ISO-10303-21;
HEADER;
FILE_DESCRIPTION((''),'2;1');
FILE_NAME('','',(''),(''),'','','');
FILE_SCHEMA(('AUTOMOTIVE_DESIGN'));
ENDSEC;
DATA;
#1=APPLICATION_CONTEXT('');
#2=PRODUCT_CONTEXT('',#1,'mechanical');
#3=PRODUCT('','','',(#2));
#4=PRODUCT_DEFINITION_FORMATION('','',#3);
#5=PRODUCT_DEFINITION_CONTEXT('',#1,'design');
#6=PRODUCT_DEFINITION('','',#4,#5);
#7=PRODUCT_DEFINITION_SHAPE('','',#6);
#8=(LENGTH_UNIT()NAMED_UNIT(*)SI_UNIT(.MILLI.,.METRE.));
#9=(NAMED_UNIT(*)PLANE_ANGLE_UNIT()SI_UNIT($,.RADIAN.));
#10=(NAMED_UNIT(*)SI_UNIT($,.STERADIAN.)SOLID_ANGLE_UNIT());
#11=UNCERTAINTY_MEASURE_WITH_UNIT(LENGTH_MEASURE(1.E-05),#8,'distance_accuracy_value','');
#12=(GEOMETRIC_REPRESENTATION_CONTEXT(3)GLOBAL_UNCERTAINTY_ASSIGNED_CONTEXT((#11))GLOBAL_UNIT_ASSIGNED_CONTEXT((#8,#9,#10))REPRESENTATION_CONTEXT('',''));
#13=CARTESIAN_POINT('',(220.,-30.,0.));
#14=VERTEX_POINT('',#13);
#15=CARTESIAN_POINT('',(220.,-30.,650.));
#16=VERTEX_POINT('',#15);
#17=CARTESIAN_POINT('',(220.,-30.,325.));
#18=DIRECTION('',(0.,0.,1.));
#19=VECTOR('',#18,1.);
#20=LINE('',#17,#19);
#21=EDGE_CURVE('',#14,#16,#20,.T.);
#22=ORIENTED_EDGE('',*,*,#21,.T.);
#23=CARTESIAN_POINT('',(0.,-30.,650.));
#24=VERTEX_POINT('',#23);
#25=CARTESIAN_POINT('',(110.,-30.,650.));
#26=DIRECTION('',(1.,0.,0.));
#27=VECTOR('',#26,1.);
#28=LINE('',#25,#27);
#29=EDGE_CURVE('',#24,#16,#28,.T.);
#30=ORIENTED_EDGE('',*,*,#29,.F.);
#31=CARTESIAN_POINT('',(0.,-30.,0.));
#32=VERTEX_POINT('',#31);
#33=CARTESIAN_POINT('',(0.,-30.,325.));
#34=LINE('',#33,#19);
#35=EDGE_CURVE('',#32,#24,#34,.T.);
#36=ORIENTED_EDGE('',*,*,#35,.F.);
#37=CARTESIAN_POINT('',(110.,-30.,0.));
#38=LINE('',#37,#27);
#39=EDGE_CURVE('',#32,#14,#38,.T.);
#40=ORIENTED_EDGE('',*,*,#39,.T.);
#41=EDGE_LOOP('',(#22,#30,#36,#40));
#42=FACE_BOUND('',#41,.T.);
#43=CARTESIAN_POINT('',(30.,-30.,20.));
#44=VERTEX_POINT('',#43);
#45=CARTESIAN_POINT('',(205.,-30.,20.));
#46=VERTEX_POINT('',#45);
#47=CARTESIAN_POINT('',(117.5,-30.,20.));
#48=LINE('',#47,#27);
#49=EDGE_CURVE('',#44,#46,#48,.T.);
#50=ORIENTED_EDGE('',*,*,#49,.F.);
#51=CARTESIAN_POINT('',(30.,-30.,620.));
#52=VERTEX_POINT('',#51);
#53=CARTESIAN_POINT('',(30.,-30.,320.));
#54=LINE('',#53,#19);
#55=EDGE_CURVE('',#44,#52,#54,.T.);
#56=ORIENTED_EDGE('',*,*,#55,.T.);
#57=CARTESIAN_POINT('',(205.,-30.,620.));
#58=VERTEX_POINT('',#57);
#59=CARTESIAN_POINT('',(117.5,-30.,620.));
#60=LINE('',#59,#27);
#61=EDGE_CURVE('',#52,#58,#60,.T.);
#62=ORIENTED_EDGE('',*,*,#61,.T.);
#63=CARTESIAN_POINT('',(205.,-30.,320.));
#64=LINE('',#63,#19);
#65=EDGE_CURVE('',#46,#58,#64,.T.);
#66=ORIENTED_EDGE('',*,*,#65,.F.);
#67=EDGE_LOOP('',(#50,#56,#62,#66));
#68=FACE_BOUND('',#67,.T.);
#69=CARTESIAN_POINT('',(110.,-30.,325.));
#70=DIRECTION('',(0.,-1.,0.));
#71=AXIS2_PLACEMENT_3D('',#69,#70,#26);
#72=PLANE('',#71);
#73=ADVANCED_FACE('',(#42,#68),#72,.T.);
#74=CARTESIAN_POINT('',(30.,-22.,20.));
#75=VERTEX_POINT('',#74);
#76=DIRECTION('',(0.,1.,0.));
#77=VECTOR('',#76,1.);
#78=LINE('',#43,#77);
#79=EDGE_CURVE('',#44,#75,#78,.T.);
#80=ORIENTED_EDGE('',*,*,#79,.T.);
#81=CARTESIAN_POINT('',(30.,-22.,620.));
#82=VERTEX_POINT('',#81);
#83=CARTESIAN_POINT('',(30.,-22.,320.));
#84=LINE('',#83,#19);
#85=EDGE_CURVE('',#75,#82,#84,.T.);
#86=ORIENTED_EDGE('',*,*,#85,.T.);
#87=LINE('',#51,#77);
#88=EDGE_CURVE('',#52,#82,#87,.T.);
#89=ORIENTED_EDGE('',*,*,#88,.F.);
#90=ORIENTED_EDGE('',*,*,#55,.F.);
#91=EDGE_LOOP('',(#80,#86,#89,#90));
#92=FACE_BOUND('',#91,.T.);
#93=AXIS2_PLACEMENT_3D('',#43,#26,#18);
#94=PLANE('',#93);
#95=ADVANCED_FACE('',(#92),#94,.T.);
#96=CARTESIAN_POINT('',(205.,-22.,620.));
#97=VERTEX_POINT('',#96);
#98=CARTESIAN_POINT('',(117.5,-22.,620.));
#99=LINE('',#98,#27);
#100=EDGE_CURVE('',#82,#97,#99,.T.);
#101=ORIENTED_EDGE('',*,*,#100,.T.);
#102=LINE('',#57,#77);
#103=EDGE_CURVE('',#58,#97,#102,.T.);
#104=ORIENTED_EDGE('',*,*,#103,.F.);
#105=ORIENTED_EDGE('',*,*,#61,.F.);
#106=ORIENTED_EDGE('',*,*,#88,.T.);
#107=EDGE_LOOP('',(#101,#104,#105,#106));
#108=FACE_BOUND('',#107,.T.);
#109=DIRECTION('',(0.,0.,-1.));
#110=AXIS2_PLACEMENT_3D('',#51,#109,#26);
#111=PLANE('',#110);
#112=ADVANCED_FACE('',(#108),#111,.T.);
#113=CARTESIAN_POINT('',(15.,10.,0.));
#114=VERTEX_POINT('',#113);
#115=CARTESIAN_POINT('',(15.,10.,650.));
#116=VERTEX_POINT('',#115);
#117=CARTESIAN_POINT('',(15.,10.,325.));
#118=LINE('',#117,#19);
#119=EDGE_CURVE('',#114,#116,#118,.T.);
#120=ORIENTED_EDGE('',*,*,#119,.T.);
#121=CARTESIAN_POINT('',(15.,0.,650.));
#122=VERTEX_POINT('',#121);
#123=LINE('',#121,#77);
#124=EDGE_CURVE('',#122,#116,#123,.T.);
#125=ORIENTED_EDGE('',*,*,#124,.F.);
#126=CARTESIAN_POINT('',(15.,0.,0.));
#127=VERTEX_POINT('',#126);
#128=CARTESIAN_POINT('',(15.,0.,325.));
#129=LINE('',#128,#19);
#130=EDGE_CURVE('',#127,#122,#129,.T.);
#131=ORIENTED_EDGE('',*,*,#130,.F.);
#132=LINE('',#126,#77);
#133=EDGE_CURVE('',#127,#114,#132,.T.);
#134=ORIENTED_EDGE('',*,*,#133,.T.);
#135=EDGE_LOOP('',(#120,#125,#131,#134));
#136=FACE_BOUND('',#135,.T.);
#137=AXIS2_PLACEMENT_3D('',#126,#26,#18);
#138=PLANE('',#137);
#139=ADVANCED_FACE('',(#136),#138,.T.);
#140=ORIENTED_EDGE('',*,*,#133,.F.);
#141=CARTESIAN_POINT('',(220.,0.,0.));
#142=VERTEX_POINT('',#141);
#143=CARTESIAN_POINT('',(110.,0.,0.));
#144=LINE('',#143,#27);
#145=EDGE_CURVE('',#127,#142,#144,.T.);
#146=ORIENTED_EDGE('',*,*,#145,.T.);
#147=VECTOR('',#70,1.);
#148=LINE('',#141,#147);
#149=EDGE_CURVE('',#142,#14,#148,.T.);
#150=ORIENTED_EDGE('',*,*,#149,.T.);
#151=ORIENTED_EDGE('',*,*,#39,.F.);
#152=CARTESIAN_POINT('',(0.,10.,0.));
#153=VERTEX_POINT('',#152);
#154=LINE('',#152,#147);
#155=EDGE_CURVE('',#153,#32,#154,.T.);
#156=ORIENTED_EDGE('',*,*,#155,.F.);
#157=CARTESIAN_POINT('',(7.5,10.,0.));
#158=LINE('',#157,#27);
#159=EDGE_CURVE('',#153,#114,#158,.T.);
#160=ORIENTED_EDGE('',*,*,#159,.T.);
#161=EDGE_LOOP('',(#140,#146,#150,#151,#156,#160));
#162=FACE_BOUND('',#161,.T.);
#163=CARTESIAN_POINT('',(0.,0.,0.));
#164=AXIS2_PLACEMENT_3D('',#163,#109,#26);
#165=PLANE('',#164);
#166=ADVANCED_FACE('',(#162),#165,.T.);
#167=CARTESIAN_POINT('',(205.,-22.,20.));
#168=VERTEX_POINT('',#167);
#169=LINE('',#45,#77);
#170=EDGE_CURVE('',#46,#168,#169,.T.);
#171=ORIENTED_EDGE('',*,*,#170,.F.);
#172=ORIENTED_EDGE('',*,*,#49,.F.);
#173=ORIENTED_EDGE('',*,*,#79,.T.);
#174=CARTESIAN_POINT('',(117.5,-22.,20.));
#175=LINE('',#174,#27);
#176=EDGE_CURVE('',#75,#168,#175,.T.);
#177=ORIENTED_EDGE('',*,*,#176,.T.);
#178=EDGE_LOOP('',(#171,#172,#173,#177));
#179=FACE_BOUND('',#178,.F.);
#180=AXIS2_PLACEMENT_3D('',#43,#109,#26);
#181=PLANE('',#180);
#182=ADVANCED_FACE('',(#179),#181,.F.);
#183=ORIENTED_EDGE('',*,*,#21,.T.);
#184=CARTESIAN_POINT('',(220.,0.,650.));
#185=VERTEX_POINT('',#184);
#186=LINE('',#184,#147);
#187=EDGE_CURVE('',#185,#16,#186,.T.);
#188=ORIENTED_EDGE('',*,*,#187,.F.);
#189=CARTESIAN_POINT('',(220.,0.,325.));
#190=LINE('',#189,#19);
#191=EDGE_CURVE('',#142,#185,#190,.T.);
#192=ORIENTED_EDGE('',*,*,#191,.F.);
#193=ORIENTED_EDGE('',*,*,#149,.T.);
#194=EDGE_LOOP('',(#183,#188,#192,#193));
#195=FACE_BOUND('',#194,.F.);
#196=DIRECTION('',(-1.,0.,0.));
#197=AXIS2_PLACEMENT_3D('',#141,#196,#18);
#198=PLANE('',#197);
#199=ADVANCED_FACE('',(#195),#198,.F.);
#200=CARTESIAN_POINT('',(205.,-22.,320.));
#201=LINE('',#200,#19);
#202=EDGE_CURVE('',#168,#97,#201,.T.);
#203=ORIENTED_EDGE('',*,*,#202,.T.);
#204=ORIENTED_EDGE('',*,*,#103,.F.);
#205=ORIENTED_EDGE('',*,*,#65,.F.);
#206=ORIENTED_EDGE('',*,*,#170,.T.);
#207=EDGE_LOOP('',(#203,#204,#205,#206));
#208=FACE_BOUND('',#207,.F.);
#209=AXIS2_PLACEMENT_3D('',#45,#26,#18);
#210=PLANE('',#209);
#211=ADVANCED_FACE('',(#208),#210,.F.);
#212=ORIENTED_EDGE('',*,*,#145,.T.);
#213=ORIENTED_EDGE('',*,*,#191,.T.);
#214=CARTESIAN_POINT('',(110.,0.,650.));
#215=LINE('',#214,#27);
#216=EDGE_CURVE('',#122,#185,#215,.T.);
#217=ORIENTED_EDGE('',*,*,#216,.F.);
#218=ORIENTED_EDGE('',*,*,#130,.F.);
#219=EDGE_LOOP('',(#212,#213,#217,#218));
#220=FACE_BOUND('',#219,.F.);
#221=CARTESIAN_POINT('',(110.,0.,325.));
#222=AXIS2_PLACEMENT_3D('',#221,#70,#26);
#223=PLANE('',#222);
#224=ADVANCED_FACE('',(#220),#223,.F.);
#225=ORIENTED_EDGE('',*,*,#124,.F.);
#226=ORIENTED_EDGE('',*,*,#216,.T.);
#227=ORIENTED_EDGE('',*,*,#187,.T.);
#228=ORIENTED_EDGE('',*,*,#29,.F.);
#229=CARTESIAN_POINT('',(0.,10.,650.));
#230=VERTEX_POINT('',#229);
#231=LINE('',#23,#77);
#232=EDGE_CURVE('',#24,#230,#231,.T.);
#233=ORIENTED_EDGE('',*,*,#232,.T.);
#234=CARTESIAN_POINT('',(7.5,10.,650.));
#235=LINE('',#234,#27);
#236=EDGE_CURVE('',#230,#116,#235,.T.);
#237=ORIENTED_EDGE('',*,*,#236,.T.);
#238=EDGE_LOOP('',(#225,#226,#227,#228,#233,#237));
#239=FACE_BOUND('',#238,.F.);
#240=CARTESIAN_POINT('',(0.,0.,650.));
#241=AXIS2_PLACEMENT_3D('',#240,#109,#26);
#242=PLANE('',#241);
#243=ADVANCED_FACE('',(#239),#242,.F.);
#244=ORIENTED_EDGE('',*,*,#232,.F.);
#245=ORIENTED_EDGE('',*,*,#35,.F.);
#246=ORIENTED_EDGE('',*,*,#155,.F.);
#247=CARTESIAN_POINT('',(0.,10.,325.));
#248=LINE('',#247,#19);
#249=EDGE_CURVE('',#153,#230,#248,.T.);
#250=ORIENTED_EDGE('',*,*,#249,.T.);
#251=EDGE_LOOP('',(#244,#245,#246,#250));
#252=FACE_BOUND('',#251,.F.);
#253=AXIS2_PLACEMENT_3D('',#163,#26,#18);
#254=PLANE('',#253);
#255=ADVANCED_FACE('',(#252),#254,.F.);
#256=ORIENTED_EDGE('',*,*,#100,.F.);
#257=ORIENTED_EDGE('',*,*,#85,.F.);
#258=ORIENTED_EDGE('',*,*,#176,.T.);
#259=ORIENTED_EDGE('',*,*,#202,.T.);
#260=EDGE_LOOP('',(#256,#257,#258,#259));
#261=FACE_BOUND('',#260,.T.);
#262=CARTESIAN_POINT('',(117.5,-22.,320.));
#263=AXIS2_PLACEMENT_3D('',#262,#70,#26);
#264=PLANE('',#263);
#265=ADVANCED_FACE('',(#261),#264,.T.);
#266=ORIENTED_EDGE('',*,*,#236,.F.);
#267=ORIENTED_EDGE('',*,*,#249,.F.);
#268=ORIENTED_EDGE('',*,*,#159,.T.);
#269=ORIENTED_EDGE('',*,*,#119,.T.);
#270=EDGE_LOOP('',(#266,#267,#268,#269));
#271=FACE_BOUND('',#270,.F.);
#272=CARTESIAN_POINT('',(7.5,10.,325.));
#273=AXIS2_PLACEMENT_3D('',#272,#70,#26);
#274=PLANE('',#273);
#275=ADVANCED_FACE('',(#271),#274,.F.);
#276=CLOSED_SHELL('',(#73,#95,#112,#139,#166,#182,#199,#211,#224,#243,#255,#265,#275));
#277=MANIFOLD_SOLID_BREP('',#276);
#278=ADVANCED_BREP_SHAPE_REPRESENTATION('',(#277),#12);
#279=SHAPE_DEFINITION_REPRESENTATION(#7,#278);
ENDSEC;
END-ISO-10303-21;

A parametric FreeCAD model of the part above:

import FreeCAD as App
import Part
import Sketcher
Q = App.Units.Quantity


def add_polygon(sketch, points):
    """Adds a closed chain of lines whose ends are joined by coincident constraints."""
    first, n = sketch.GeometryCount, len(points)
    for a, b in zip(points, points[1:] + points[:1]):
        sketch.addGeometry(Part.LineSegment(App.Vector(*a, 0), App.Vector(*b, 0)), False)
    for i in range(n):
        sketch.addConstraint(Sketcher.Constraint("Coincident", first + i, 2, first + (i + 1) % n, 1))

doc = App.newDocument("Part")
body = doc.addObject("PartDesign::Body", "Body")

# Sketch on XZ plane
sketch1 = body.newObject("Sketcher::SketchObject", "Sketch")
sketch1.AttachmentSupport = (doc.getObject("XZ_Plane"), [""])
sketch1.MapMode = "FlatFace"
add_polygon(sketch1, [(0, 650), (0, 0), (220, 0), (220, 650)])  # lines 0-3
sketch1.addConstraint(Sketcher.Constraint("Vertical", 0))
sketch1.addConstraint(Sketcher.Constraint("Horizontal", 1))
sketch1.addConstraint(Sketcher.Constraint("Vertical", 2))
sketch1.addConstraint(Sketcher.Constraint("Horizontal", 3))
sketch1.addConstraint(Sketcher.Constraint("Coincident", 0, 2, -1, 1))
sketch1.addConstraint(Sketcher.Constraint("DistanceX", 1, 1, 1, 2, Q("220 mm")))
sketch1.addConstraint(Sketcher.Constraint("DistanceY", 0, 2, 0, 1, Q("650 mm")))
pad1 = body.newObject("PartDesign::Pad", "Pad")
pad1.Profile = sketch1
pad1.Length = 30

# Sketch on XZ plane
sketch2 = body.newObject("Sketcher::SketchObject", "Sketch001")
sketch2.AttachmentSupport = (doc.getObject("XZ_Plane"), [""])
sketch2.MapMode = "FlatFace"
sketch2.AttachmentOffset = App.Placement(App.Vector(0, 0, 30), App.Rotation())
add_polygon(sketch2, [(30, 620), (30, 20), (205, 20), (205, 620)])  # lines 0-3
sketch2.addConstraint(Sketcher.Constraint("Vertical", 0))
sketch2.addConstraint(Sketcher.Constraint("Horizontal", 1))
sketch2.addConstraint(Sketcher.Constraint("Vertical", 2))
sketch2.addConstraint(Sketcher.Constraint("Horizontal", 3))
sketch2.addConstraint(Sketcher.Constraint("DistanceX", 1, 1, 1, 2, Q("175 mm")))
sketch2.addConstraint(Sketcher.Constraint("DistanceY", 0, 2, 0, 1, Q("600 mm")))
sketch2.addConstraint(Sketcher.Constraint("DistanceX", -1, 1, 0, 2, Q("30 mm")))
sketch2.addConstraint(Sketcher.Constraint("DistanceY", -1, 1, 0, 2, Q("20 mm")))
pocket1 = body.newObject("PartDesign::Pocket", "Pocket")
pocket1.Profile = sketch2
pocket1.Length = 8

# Sketch on XZ plane
sketch3 = body.newObject("Sketcher::SketchObject", "Sketch002")
sketch3.AttachmentSupport = (doc.getObject("XZ_Plane"), [""])
sketch3.MapMode = "FlatFace"
add_polygon(sketch3, [(0, 650), (0, 0), (15, 0), (15, 650)])  # lines 0-3
sketch3.addConstraint(Sketcher.Constraint("Vertical", 0))
sketch3.addConstraint(Sketcher.Constraint("Horizontal", 1))
sketch3.addConstraint(Sketcher.Constraint("Vertical", 2))
sketch3.addConstraint(Sketcher.Constraint("Horizontal", 3))
sketch3.addConstraint(Sketcher.Constraint("Coincident", 0, 2, -1, 1))
sketch3.addConstraint(Sketcher.Constraint("DistanceX", 1, 1, 1, 2, Q("15 mm")))
sketch3.addConstraint(Sketcher.Constraint("DistanceY", 0, 2, 0, 1, Q("650 mm")))
pad2 = body.newObject("PartDesign::Pad", "Pad001")
pad2.Profile = sketch3
pad2.Length = 10
pad2.Reversed = True

doc.recompute()
